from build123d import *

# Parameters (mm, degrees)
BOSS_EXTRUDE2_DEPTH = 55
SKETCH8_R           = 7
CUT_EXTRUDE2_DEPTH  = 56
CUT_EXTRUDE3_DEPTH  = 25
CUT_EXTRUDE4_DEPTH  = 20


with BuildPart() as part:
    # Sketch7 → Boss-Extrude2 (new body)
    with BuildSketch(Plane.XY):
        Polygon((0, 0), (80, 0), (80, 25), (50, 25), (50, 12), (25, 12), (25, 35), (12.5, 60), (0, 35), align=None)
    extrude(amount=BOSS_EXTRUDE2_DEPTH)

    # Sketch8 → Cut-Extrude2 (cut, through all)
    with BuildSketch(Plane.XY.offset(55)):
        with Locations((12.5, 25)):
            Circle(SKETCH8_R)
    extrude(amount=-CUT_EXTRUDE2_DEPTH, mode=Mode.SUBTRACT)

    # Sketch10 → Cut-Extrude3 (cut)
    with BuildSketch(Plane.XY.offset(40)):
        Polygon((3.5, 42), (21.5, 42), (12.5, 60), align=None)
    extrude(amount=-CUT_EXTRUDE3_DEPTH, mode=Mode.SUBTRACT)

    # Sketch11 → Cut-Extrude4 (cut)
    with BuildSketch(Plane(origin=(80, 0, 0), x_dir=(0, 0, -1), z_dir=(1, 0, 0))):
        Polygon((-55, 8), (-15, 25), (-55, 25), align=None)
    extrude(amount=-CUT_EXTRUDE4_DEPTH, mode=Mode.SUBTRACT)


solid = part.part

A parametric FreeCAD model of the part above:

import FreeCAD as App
import Part
import Sketcher


def add_polygon(sketch, points):
    """Adds a closed chain of lines whose ends are joined by coincident constraints."""
    first, n = sketch.GeometryCount, len(points)
    for a, b in zip(points, points[1:] + points[:1]):
        sketch.addGeometry(Part.LineSegment(App.Vector(*a, 0), App.Vector(*b, 0)), False)
    for i in range(n):
        sketch.addConstraint(Sketcher.Constraint("Coincident", first + i, 2, first + (i + 1) % n, 1))

doc = App.newDocument("Part")
params = doc.addObject("Spreadsheet::Sheet", "Params")
for row, (alias, value) in enumerate([
    ("sketch1_width", "80 mm"),
    ("sketch1_width2", "30 mm"),
    ("sketch1_width3", "25 mm"),
    ("sketch1_height", "13 mm"),
    ("sketch1_height2", "23 mm"),
    ("pad1_length", "55 mm"),
    ("sketch2_diameter", "14 mm"),
    ("sketch3_width", "18 mm"),
    ("pocket2_length", "25 mm"),
    ("sketch4_width", "17 mm"),
    ("sketch4_height", "40 mm"),
    ("pocket3_length", "20 mm"),
], start=1):
    params.set(f"A{row}", alias)
    params.set(f"B{row}", "=" + value)
    params.setAlias(f"B{row}", alias)

body = doc.addObject("PartDesign::Body", "Body")

# Sketch on XY plane
sketch1 = body.newObject("Sketcher::SketchObject", "Sketch")
sketch1.AttachmentSupport = (doc.getObject("XY_Plane"), [""])
sketch1.MapMode = "FlatFace"
add_polygon(sketch1, [(0, 0), (80, 0), (80, 25), (50, 25), (50, 12), (25, 12), (25, 35), (12.5, 60), (0, 35)])  # lines 0-8
sketch1.addConstraint([
    Sketcher.Constraint("Horizontal", 0),
    Sketcher.Constraint("Vertical", 1),
    Sketcher.Constraint("Horizontal", 2),
    Sketcher.Constraint("Vertical", 3),
    Sketcher.Constraint("Horizontal", 4),
    Sketcher.Constraint("Vertical", 5),
    Sketcher.Constraint("Vertical", 8),
    Sketcher.Constraint("Coincident", 8, 2, -1, 1),
    Sketcher.Constraint("Horizontal", 5, 2, 7, 2),
    Sketcher.Constraint("Equal", 4, 1),
    Sketcher.Constraint("Equal", 6, 7),
    Sketcher.Constraint("DistanceX", 0, 1, 0, 2, 80.0),
    Sketcher.Constraint("DistanceX", 2, 2, 2, 1, 30.0),
    Sketcher.Constraint("DistanceX", 4, 2, 4, 1, 25.0),
    Sketcher.Constraint("DistanceY", 3, 2, 3, 1, 13.0),
    Sketcher.Constraint("DistanceY", 5, 1, 5, 2, 23.0),
    Sketcher.Constraint("DistanceY", -1, 1, 6, 2, 60.0),
])
sketch1.setExpression("Constraints[20]", "Params.sketch1_width")
sketch1.setExpression("Constraints[21]", "Params.sketch1_width2")
sketch1.setExpression("Constraints[22]", "Params.sketch1_width3")
sketch1.setExpression("Constraints[23]", "Params.sketch1_height")
sketch1.setExpression("Constraints[24]", "Params.sketch1_height2")
pad1 = body.newObject("PartDesign::Pad", "Pad")
pad1.Profile = sketch1
pad1.setExpression("Length", "Params.pad1_length")

# Sketch on XY plane
sketch2 = body.newObject("Sketcher::SketchObject", "Sketch001")
sketch2.AttachmentSupport = (doc.getObject("XY_Plane"), [""])
sketch2.MapMode = "FlatFace"
sketch2.AttachmentOffset = App.Placement(App.Vector(0, 0, 55), App.Rotation())
sketch2.addGeometry(Part.Circle(App.Vector(12.5, 25, 0), App.Vector(0, 0, 1), 7), False)
sketch2.addConstraint([
    Sketcher.Constraint("Diameter", 0, 14.0),
    Sketcher.Constraint("DistanceY", -1, 1, 0, 3, 25.0),
    Sketcher.Constraint("DistanceX", -1, 1, 0, 3, 12.5),
])
sketch2.setExpression("Constraints[0]", "Params.sketch2_diameter")
pocket1 = body.newObject("PartDesign::Pocket", "Pocket")
pocket1.Profile = sketch2
pocket1.Type = "ThroughAll"

# Sketch on XY plane
sketch3 = body.newObject("Sketcher::SketchObject", "Sketch002")
sketch3.AttachmentSupport = (doc.getObject("XY_Plane"), [""])
sketch3.MapMode = "FlatFace"
sketch3.AttachmentOffset = App.Placement(App.Vector(0, 0, 40), App.Rotation())
add_polygon(sketch3, [(3.5, 42), (21.5, 42), (12.5, 60)])  # lines 0-2
sketch3.addConstraint([
    Sketcher.Constraint("Horizontal", 0),
    Sketcher.Constraint("Equal", 1, 2),
    Sketcher.Constraint("DistanceX", 0, 1, 0, 2, 18.0),
    Sketcher.Constraint("DistanceY", -1, 1, 0, 2, 42.0),
    Sketcher.Constraint("DistanceY", -1, 1, 1, 2, 60.0),
    Sketcher.Constraint("DistanceX", -1, 1, 0, 2, 21.5),
])
sketch3.setExpression("Constraints[5]", "Params.sketch3_width")
pocket2 = body.newObject("PartDesign::Pocket", "Pocket001")
pocket2.Profile = sketch3
pocket2.setExpression("Length", "Params.pocket2_length")

# Sketch on YZ plane
sketch4 = body.newObject("Sketcher::SketchObject", "Sketch003")
sketch4.AttachmentSupport = (doc.getObject("YZ_Plane"), [""])
sketch4.MapMode = "FlatFace"
sketch4.AttachmentOffset = App.Placement(App.Vector(0, 0, 80), App.Rotation())
add_polygon(sketch4, [(8, 55), (25, 15), (25, 55)])  # lines 0-2
sketch4.addConstraint([
    Sketcher.Constraint("Vertical", 1),
    Sketcher.Constraint("Horizontal", 2),
    Sketcher.Constraint("DistanceX", 2, 2, 2, 1, 17.0),
    Sketcher.Constraint("DistanceY", 1, 1, 1, 2, 40.0),
    Sketcher.Constraint("DistanceX", -1, 1, 0, 2, 25.0),
    Sketcher.Constraint("DistanceY", -1, 1, 0, 2, 15.0),
])
sketch4.setExpression("Constraints[5]", "Params.sketch4_width")
sketch4.setExpression("Constraints[6]", "Params.sketch4_height")
pocket3 = body.newObject("PartDesign::Pocket", "Pocket002")
pocket3.Profile = sketch4
pocket3.setExpression("Length", "Params.pocket3_length")

doc.recompute()
